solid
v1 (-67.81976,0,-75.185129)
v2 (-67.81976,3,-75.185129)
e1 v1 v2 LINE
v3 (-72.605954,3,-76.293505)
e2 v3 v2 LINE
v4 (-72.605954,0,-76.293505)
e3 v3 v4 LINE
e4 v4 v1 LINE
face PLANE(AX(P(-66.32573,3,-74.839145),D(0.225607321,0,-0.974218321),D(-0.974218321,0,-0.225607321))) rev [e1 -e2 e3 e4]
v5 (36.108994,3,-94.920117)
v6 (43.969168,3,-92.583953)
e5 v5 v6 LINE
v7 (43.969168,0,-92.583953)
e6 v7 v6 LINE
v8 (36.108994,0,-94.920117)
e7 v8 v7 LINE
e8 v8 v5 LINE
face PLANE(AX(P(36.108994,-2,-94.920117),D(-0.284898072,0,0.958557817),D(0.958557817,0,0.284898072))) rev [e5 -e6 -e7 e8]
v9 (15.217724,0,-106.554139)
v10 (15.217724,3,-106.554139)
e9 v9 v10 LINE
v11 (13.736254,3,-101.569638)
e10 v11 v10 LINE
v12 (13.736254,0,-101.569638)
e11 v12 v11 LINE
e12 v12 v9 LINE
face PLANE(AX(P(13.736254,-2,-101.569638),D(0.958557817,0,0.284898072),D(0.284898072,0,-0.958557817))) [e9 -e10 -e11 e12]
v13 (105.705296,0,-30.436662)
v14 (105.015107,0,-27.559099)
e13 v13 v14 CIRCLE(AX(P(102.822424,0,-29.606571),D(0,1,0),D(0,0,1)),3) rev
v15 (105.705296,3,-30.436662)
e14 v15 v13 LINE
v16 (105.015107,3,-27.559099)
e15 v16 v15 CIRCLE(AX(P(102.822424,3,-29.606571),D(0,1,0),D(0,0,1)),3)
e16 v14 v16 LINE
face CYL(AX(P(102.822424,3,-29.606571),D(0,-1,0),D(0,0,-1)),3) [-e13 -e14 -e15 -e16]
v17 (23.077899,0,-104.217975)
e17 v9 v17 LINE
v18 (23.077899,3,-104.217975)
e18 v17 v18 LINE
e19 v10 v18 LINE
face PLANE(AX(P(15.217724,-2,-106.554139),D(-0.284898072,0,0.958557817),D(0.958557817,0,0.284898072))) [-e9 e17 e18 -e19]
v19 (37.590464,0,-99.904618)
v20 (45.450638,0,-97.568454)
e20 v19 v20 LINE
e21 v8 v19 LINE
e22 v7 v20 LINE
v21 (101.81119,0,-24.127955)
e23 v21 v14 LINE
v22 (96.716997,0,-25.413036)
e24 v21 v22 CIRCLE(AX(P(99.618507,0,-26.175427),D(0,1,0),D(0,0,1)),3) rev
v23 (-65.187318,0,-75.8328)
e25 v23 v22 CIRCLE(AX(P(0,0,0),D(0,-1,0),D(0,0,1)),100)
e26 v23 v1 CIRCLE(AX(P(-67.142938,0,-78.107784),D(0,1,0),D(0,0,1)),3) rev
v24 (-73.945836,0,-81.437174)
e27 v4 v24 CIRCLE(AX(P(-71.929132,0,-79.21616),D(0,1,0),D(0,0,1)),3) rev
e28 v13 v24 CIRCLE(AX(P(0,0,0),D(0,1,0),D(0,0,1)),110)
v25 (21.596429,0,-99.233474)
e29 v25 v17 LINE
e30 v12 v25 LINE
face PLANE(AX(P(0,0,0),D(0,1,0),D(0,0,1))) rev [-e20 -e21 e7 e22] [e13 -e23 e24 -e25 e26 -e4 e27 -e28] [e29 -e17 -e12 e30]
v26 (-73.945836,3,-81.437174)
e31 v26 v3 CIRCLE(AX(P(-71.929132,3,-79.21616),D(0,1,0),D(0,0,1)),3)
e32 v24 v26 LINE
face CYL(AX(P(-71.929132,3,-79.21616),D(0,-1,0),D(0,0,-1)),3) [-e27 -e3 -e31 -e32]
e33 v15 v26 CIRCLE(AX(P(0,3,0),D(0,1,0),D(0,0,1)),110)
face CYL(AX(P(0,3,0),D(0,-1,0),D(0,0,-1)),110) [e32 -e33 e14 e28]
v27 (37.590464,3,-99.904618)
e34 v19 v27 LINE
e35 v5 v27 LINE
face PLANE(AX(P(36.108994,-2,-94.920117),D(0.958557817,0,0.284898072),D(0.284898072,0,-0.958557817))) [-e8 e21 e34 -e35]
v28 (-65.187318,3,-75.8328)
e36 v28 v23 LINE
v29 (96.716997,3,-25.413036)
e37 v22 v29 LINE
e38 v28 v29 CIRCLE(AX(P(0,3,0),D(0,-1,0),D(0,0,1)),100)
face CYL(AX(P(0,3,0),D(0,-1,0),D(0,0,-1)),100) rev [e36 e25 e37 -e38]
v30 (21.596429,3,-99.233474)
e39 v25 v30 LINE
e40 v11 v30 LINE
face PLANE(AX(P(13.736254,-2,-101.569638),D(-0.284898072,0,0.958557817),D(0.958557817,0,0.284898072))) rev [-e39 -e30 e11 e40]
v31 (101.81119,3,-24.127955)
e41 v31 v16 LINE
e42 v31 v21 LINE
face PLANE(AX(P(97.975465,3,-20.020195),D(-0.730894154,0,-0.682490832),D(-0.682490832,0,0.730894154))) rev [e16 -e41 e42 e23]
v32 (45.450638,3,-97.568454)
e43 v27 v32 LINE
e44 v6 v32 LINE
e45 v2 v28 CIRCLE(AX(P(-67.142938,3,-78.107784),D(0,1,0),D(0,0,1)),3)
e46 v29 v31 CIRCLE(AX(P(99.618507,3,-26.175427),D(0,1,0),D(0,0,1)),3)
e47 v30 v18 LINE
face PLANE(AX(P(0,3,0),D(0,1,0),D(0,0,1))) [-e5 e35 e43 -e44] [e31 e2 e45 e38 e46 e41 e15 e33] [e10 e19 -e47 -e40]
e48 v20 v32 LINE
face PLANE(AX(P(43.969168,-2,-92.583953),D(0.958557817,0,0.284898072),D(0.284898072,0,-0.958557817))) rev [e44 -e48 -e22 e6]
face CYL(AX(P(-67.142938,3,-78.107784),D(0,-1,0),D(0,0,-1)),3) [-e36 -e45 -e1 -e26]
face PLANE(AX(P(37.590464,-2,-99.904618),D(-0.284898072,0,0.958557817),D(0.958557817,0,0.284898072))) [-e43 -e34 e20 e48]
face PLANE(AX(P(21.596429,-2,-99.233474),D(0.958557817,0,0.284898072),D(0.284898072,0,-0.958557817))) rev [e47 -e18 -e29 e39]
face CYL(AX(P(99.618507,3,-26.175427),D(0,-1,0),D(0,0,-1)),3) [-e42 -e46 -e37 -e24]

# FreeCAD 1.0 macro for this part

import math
import FreeCAD as App
import Part
import Sketcher

V = App.Vector


def edges_at(feature, points):
    """Names of the edges that pass closest to the given points."""
    edges = feature.Shape.Edges
    near = lambda p: min(range(len(edges)), key=lambda i: edges[i].distToShape(Part.Vertex(*p))[0])
    return sorted({f"Edge{near(p) + 1}" for p in points})


def add_polygon(sketch, points):
    """Adds a closed chain of lines whose ends are joined by coincident constraints."""
    first, n = sketch.GeometryCount, len(points)
    for a, b in zip(points, points[1:] + points[:1]):
        sketch.addGeometry(Part.LineSegment(App.Vector(*a, 0), App.Vector(*b, 0)), False)
    for i in range(n):
        sketch.addConstraint(Sketcher.Constraint("Coincident", first + i, 2, first + (i + 1) % n, 1))

doc = App.newDocument("Part")
body = doc.addObject("PartDesign::Body", "Body")

# Sketch on XZ plane
sketch1 = doc.addObject("Sketcher::SketchObject", "Sketch")
body.addObject(sketch1)
sketch1.AttachmentSupport = (doc.XZ_Plane, [""])
sketch1.MapMode = "FlatFace"
sketch1.addGeometry(Part.LineSegment(V(98, -20, 0), V(106, -29, 0)), False)
sketch1.addGeometry(Part.ArcOfCircle(Part.Circle(V(0, 0, 0), V(0, 0, 1), 110), math.radians(-135), math.radians(-15)), False)
sketch1.addGeometry(Part.LineSegment(V(-78, -78, 0), V(-66, -75, 0)), False)
sketch1.addGeometry(Part.ArcOfCircle(Part.Circle(V(0, 0, 0), V(0, 0, 1), 100), math.radians(-132), math.radians(-12)), False)
sketch1.addConstraint(Sketcher.Constraint("Coincident", 0, 2, 1, 2))
sketch1.addConstraint(Sketcher.Constraint("Coincident", 1, 1, 2, 1))
sketch1.addConstraint(Sketcher.Constraint("Coincident", 2, 2, 3, 1))
sketch1.addConstraint(Sketcher.Constraint("Coincident", 3, 2, 0, 1))
sketch1.addConstraint(Sketcher.Constraint("Coincident", 1, 3, -1, 1))
sketch1.addConstraint(Sketcher.Constraint("Coincident", 3, 3, -1, 1))
sketch1.addConstraint(Sketcher.Constraint("Equal", 0, 2))
sketch1.addConstraint(Sketcher.Constraint("Radius", 1, 110.0))
sketch1.addConstraint(Sketcher.Constraint("Radius", 3, 100.0))
sketch1.addConstraint(Sketcher.Constraint("Distance", 0, 12.0))
sketch1.addConstraint(Sketcher.Constraint("DistanceX", 1, 1, -1, 1, 78.01635))
sketch1.addConstraint(Sketcher.Constraint("DistanceY", 1, 1, 0, 2, 48.755508))
pad1 = doc.addObject("PartDesign::Pad", "Pad")
body.addObject(pad1)
pad1.Profile = sketch1
pad1.Length = 3
pad1.Reversed = True

# Sketch on XZ plane
sketch2 = doc.addObject("Sketcher::SketchObject", "Sketch001")
body.addObject(sketch2)
sketch2.AttachmentSupport = (doc.XZ_Plane, [""])
sketch2.MapMode = "FlatFace"
sketch2.AttachmentOffset = App.Placement(V(0, 0, -3), App.Rotation())
add_polygon(sketch2, [(36, -95), (44, -93), (45, -98), (38, -100)])  # lines 0-3
add_polygon(sketch2, [(14, -102), (22, -99), (23, -104), (15, -107)])  # lines 4-7
sketch2.addConstraint(Sketcher.Constraint("Perpendicular", 0, 1))
sketch2.addConstraint(Sketcher.Constraint("Perpendicular", 1, 2))
sketch2.addConstraint(Sketcher.Constraint("Perpendicular", 2, 3))
sketch2.addConstraint(Sketcher.Constraint("Perpendicular", 3, 4))
sketch2.addConstraint(Sketcher.Constraint("Perpendicular", 4, 5))
sketch2.addConstraint(Sketcher.Constraint("Perpendicular", 5, 6))
sketch2.addConstraint(Sketcher.Constraint("Perpendicular", 6, 7))
sketch2.addConstraint(Sketcher.Constraint("Equal", 2, 4))
sketch2.addConstraint(Sketcher.Constraint("Equal", 3, 5))
sketch2.addConstraint(Sketcher.Constraint("Distance", 0, 8.2))
sketch2.addConstraint(Sketcher.Constraint("Distance", 1, 5.2))
sketch2.addConstraint(Sketcher.Constraint("DistanceX", -1, 1, 5, 2, 23.077899))
sketch2.addConstraint(Sketcher.Constraint("DistanceY", 1, 2, 0, 2, 4.984501))
sketch2.addConstraint(Sketcher.Constraint("DistanceX", -1, 1, 0, 2, 43.969168))
sketch2.addConstraint(Sketcher.Constraint("DistanceY", 6, 2, -1, 1, 106.554139))
sketch2.addConstraint(Sketcher.Constraint("DistanceY", 4, 2, 0, 2, 6.649521))
pocket1 = doc.addObject("PartDesign::Pocket", "Pocket")
body.addObject(pocket1)
pocket1.Profile = sketch2
pocket1.Length = 5
pocket1.Reversed = True
doc.recompute()

fillet = doc.addObject("PartDesign::Fillet", "Fillet")
body.addObject(fillet)
fillet.Base = (pocket1, edges_at(pocket1, [
    (-66.326, 1.5, -74.839),
    (-78.016, 1.5, -77.546),
    (106.165, 1.5, -28.791),
    (97.975, 1.5, -20.02),
]))
fillet.Radius = 3

doc.recompute()
